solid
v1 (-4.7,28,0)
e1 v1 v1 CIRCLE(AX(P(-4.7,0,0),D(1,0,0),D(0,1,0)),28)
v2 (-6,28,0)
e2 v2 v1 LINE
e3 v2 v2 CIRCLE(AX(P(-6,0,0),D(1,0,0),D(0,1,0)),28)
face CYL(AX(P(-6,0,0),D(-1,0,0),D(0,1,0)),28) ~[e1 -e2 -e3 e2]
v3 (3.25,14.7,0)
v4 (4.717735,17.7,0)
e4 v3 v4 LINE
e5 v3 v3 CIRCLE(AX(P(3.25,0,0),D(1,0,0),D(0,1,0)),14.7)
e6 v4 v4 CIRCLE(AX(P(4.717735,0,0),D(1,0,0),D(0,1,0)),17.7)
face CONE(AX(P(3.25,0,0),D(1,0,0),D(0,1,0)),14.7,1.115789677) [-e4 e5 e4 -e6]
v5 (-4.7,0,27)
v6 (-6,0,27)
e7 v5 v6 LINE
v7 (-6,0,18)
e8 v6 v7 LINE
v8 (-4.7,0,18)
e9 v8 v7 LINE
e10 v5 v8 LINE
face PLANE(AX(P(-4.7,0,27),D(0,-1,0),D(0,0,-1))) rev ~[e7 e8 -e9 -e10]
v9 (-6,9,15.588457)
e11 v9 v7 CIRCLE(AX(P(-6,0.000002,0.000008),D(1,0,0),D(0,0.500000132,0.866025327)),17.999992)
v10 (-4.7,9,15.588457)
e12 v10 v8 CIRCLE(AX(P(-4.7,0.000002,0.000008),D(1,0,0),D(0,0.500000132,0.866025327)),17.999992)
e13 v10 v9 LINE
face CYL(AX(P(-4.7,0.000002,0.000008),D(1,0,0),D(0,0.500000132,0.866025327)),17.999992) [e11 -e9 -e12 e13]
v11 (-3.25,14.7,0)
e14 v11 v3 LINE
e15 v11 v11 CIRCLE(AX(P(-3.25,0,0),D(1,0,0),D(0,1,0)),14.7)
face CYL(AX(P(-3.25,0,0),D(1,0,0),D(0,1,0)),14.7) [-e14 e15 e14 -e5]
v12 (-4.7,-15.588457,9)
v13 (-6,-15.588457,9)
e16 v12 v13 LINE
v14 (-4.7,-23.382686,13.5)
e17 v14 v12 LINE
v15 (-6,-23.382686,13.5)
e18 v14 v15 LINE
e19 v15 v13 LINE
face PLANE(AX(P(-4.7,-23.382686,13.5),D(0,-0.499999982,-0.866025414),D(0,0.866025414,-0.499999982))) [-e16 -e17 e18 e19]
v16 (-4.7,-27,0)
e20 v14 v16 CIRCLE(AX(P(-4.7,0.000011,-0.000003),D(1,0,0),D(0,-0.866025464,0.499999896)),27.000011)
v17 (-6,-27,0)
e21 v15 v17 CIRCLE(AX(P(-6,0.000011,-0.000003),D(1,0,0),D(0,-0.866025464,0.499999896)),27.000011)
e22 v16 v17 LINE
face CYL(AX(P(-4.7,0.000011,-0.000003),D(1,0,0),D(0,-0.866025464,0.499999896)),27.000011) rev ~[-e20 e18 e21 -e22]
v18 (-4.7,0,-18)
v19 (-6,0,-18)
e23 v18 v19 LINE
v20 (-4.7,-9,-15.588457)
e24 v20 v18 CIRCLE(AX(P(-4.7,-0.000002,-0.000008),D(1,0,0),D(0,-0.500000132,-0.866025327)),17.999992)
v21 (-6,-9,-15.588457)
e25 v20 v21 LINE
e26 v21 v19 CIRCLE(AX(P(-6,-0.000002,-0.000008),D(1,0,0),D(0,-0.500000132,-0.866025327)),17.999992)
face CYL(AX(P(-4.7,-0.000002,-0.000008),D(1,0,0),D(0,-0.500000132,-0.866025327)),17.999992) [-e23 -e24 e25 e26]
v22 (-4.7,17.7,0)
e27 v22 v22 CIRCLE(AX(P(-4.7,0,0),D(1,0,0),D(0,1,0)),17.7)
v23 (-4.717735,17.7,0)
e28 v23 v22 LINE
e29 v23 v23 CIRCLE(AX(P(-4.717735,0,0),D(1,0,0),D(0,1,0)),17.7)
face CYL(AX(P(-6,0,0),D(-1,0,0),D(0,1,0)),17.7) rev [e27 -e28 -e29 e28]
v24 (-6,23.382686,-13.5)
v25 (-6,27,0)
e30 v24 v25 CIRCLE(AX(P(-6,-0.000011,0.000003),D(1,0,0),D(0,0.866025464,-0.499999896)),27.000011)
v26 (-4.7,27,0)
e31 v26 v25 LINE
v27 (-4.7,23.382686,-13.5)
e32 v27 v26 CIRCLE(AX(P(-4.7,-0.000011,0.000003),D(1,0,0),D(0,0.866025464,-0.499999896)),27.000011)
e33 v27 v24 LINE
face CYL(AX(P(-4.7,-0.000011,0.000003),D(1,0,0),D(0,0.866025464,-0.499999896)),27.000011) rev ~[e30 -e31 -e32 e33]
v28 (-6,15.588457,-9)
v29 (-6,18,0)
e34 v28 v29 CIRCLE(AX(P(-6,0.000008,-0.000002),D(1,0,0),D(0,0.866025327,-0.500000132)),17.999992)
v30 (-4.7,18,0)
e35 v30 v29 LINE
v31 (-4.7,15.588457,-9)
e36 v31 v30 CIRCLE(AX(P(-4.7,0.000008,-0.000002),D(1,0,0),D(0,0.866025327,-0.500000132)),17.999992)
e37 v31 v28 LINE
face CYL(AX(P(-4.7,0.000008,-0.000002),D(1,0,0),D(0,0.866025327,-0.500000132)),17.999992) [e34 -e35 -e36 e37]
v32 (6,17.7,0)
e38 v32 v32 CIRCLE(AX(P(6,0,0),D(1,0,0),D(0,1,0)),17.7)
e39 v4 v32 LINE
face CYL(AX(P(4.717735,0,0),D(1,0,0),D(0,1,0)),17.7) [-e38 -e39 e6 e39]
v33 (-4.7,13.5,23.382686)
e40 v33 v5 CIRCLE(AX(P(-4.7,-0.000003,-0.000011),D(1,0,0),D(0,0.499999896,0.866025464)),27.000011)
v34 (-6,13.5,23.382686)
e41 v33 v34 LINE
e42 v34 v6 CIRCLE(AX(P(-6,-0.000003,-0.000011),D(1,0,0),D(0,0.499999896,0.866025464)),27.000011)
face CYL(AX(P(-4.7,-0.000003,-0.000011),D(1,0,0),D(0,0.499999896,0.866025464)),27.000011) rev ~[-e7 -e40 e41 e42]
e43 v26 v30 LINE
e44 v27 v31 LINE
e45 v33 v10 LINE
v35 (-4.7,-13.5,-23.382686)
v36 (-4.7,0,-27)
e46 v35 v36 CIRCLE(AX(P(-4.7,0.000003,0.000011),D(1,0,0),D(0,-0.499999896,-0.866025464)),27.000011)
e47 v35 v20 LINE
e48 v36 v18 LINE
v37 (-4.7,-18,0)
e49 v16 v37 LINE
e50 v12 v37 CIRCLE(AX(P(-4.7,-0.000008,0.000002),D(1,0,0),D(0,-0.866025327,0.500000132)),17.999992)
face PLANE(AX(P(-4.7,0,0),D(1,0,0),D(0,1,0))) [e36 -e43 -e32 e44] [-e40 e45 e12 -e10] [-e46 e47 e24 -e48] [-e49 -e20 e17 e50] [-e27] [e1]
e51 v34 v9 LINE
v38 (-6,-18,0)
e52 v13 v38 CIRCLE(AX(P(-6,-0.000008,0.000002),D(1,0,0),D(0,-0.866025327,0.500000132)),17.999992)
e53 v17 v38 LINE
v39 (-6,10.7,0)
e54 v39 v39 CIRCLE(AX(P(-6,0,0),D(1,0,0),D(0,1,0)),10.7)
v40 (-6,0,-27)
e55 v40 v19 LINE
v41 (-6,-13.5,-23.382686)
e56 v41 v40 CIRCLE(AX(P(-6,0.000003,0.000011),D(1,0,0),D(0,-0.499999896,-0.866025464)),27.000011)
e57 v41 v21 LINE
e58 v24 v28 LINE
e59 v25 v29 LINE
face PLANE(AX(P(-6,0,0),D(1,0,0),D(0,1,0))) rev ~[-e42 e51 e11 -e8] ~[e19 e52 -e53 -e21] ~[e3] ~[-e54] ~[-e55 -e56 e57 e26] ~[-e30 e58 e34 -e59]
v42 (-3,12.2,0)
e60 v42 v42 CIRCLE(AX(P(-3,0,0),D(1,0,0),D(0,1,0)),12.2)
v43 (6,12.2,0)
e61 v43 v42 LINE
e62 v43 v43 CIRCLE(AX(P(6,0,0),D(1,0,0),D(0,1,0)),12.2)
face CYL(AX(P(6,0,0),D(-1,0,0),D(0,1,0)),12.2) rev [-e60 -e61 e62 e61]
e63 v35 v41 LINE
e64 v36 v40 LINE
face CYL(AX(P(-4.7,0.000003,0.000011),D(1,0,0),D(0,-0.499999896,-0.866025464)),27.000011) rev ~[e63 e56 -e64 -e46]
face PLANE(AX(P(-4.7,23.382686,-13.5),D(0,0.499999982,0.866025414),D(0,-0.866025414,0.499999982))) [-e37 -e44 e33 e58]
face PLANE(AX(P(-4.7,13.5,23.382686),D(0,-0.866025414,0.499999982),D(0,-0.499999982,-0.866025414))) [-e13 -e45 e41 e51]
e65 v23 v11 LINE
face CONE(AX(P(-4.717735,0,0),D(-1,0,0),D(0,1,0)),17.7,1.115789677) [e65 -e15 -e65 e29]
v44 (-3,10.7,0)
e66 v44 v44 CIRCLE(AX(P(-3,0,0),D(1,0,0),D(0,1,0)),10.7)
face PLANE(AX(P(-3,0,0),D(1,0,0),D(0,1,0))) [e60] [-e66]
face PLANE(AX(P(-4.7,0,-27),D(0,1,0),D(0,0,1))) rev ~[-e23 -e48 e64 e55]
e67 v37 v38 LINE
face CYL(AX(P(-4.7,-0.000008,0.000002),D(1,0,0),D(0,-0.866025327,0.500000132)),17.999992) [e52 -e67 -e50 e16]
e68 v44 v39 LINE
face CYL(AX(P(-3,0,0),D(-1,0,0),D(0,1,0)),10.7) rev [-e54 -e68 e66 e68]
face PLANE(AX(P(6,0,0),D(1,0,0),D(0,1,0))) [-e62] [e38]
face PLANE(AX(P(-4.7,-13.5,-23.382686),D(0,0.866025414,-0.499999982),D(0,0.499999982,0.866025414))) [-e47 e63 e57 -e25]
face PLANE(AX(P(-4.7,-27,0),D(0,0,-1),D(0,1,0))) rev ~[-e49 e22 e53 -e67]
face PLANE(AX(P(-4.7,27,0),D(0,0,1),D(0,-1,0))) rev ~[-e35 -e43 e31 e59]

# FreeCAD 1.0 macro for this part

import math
import FreeCAD as App
import Part
import Sketcher
Q = App.Units.Quantity


def add_polygon(sketch, points):
    """Adds a closed chain of lines whose ends are joined by coincident constraints."""
    first, n = sketch.GeometryCount, len(points)
    for a, b in zip(points, points[1:] + points[:1]):
        sketch.addGeometry(Part.LineSegment(App.Vector(*a, 0), App.Vector(*b, 0)), False)
    for i in range(n):
        sketch.addConstraint(Sketcher.Constraint("Coincident", first + i, 2, first + (i + 1) % n, 1))

doc = App.newDocument("Part")
body = doc.addObject("PartDesign::Body", "Body")

# Sketch on YZ plane
sketch1 = body.newObject("Sketcher::SketchObject", "Sketch")
sketch1.AttachmentSupport = (doc.getObject("YZ_Plane"), [""])
sketch1.MapMode = "FlatFace"
sketch1.addGeometry([
    Part.Circle(App.Vector(0, 0, 0), App.Vector(0, 0, 1), 28),
    Part.Circle(App.Vector(0, 0, 0), App.Vector(0, 0, 1), 18),
], False)
sketch1.addConstraint([
    Sketcher.Constraint("Coincident", 0, 3, -1, 1),
    Sketcher.Constraint("Coincident", 1, 3, -1, 1),
    Sketcher.Constraint("Diameter", 0, Q("56 mm")),
    Sketcher.Constraint("Diameter", 1, Q("35.4 mm")),
])
pad1 = body.newObject("PartDesign::Pad", "Pad")
pad1.Profile = sketch1
pad1.Length = 1.3

# Sketch on YZ plane
sketch2 = body.newObject("Sketcher::SketchObject", "Sketch001")
sketch2.AttachmentSupport = (doc.getObject("YZ_Plane"), [""])
sketch2.MapMode = "FlatFace"
sketch2.AttachmentOffset = App.Placement(App.Vector(0, 0, 1.3), App.Rotation())
sketch2.addGeometry([
    Part.ArcOfCircle(Part.Circle(App.Vector(0.000011, -0.000003, 0), App.Vector(0, 0, 1), 27.000011), math.radians(150.000007), math.radians(179.999994)),
    Part.LineSegment(App.Vector(-27, 0, 0), App.Vector(-18, 0, 0)),
    Part.ArcOfCircle(Part.Circle(App.Vector(-0.000008, 0.000002, 0), App.Vector(0, 0, 1), 17.999992), math.radians(149.999991), math.radians(180.000006)),
    Part.LineSegment(App.Vector(-15.588457, 9, 0), App.Vector(-23.382686, 13.5, 0)),
], False)
sketch2.addConstraint([
    Sketcher.Constraint("Coincident", 0, 2, 1, 1),
    Sketcher.Constraint("Coincident", 1, 2, 2, 2),
    Sketcher.Constraint("Coincident", 2, 1, 3, 1),
    Sketcher.Constraint("Coincident", 3, 2, 0, 1),
    Sketcher.Constraint("Horizontal", 1),
    Sketcher.Constraint("Coincident", 2, 3, -1, 1),
    Sketcher.Constraint("PointOnObject", 0, 2, -1),
    Sketcher.Constraint("DistanceX", 1, 1, 1, 2, Q("9 mm")),
    Sketcher.Constraint("Distance", 3, Q("9 mm")),
    Sketcher.Constraint("DistanceX", 0, 2, -1, 1, Q("27 mm")),
    Sketcher.Constraint("DistanceY", -1, 1, 2, 1, Q("9 mm")),
    Sketcher.Constraint("DistanceY", -1, 1, 3, 2, Q("13.5 mm")),
    Sketcher.Constraint("Radius", 0, Q("27.000011 mm")),
])
pocket1 = body.newObject("PartDesign::Pocket", "Pocket")
pocket1.Profile = sketch2
pocket1.Type = "ThroughAll"
doc.recompute()

polarpattern = body.newObject("PartDesign::PolarPattern", "PolarPattern")
polarpattern.Originals = [pocket1]
polarpattern.Axis = (doc.getObject("X_Axis"), [""])
polarpattern.Angle = 360
polarpattern.Occurrences = 4
body.Tip = polarpattern
body2 = doc.addObject("PartDesign::Body", "Body001")
doc.recompute()

body.Placement = App.Placement(App.Vector(-6, 0, 0), App.Rotation(App.Vector(0, 0, 1), 0))
boolean = body2.newObject("PartDesign::Boolean", "Boolean")
boolean.Type = "Fuse"
boolean.addObjects([body])
body3 = doc.addObject("PartDesign::Body", "Body002")

# Sketch on XY plane
sketch3 = body3.newObject("Sketcher::SketchObject", "Sketch002")
sketch3.AttachmentSupport = (doc.getObject("XY_Plane002"), [""])
sketch3.MapMode = "FlatFace"
add_polygon(sketch3, [(-6, 17.7), (-6, 10.7), (-3, 10.7), (-3, 12.2), (6, 12.2), (6, 17.7), (4.7, 17.7), (3.2, 14.7), (-3.2, 14.7), (-4.7, 17.7)])  # lines 0-9
sketch3.addConstraint([
    Sketcher.Constraint("Vertical", 0),
    Sketcher.Constraint("Horizontal", 1),
    Sketcher.Constraint("Vertical", 2),
    Sketcher.Constraint("Horizontal", 3),
    Sketcher.Constraint("Vertical", 4),
    Sketcher.Constraint("Horizontal", 5),
    Sketcher.Constraint("Horizontal", 7),
    Sketcher.Constraint("Horizontal", 9),
    Sketcher.Constraint("Symmetric", 5, 2, 8, 2, -2),
    Sketcher.Constraint("Equal", 5, 9),
    Sketcher.Constraint("Equal", 6, 8),
    Sketcher.Constraint("DistanceX", 1, 1, 1, 2, Q("3 mm")),
    Sketcher.Constraint("DistanceX", 3, 1, 3, 2, Q("9 mm")),
    Sketcher.Constraint("DistanceY", 0, 2, 0, 1, Q("7 mm")),
    Sketcher.Constraint("DistanceX", 7, 2, 7, 1, Q("6.5 mm")),
    Sketcher.Constraint("DistanceY", 2, 1, 2, 2, Q("1.5 mm")),
    Sketcher.Constraint("DistanceY", 6, 2, 5, 2, Q("3 mm")),
    Sketcher.Constraint("DistanceY", -1, 1, 0, 2, Q("10.7 mm")),
    Sketcher.Constraint("DistanceX", 5, 2, 5, 1, Q("1.282265 mm")),
])
revolution = body3.newObject("PartDesign::Revolution", "Revolution")
revolution.Profile = sketch3
revolution.ReferenceAxis = (sketch3, ["H_Axis"])
revolution.Angle = 360
doc.recompute()

boolean2 = body3.newObject("PartDesign::Boolean", "Boolean001")
boolean2.Type = "Fuse"
boolean2.addObjects([body2])

doc.recompute()
